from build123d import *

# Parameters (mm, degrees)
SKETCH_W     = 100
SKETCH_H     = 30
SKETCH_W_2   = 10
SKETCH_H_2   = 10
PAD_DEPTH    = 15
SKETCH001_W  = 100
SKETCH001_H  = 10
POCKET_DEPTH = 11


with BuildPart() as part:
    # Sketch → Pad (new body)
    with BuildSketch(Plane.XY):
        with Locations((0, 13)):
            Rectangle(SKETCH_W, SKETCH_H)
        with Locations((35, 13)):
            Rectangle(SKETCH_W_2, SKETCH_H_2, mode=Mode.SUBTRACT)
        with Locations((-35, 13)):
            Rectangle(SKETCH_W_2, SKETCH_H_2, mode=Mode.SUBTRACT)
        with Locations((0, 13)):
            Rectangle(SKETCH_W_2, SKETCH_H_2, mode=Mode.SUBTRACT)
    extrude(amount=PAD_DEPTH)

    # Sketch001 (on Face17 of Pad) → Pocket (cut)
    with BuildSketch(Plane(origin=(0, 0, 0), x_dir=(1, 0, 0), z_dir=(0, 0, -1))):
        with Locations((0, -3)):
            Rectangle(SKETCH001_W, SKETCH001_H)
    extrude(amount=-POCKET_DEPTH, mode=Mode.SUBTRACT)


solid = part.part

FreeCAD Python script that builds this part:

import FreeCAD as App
import Part
import Sketcher
from FreeCAD import Vector
Q = App.Units.Quantity

doc = App.newDocument("Part")
body = doc.addObject("PartDesign::Body", "Body")

sketch1 = body.newObject("Sketcher::SketchObject", "Sketch")
sketch1.AttachmentSupport = (doc.getObject("XY_Plane"), [""])
sketch1.MapMode = "FlatFace"
sketch1.addGeometry([
    Part.LineSegment(Vector(-50, 28, 0), Vector(-50, -2, 0)),
    Part.LineSegment(Vector(-50, -2, 0), Vector(50, -2, 0)),
    Part.LineSegment(Vector(50, -2, 0), Vector(50, 28, 0)),
    Part.LineSegment(Vector(50, 28, 0), Vector(-50, 28, 0)),
    Part.LineSegment(Vector(-30, 8, 0), Vector(-40, 8, 0)),
    Part.LineSegment(Vector(-40, 8, 0), Vector(-40, 18, 0)),
    Part.LineSegment(Vector(-40, 18, 0), Vector(-30, 18, 0)),
    Part.LineSegment(Vector(-30, 18, 0), Vector(-30, 8, 0)),
    Part.LineSegment(Vector(5, 8, 0), Vector(-5, 8, 0)),
    Part.LineSegment(Vector(-5, 8, 0), Vector(-5, 18, 0)),
    Part.LineSegment(Vector(-5, 18, 0), Vector(5, 18, 0)),
    Part.LineSegment(Vector(5, 18, 0), Vector(5, 8, 0)),
    Part.LineSegment(Vector(40, 8, 0), Vector(30, 8, 0)),
    Part.LineSegment(Vector(30, 8, 0), Vector(30, 18, 0)),
    Part.LineSegment(Vector(30, 18, 0), Vector(40, 18, 0)),
    Part.LineSegment(Vector(40, 18, 0), Vector(40, 8, 0)),
], False)
sketch1.addConstraint([
    Sketcher.Constraint("Coincident", 0, 2, 1, 1),
    Sketcher.Constraint("Coincident", 1, 2, 2, 1),
    Sketcher.Constraint("Coincident", 2, 2, 3, 1),
    Sketcher.Constraint("Coincident", 3, 2, 0, 1),
    Sketcher.Constraint("Coincident", 4, 2, 5, 1),
    Sketcher.Constraint("Coincident", 5, 2, 6, 1),
    Sketcher.Constraint("Coincident", 6, 2, 7, 1),
    Sketcher.Constraint("Coincident", 7, 2, 4, 1),
    Sketcher.Constraint("Coincident", 8, 2, 9, 1),
    Sketcher.Constraint("Coincident", 9, 2, 10, 1),
    Sketcher.Constraint("Coincident", 10, 2, 11, 1),
    Sketcher.Constraint("Coincident", 11, 2, 8, 1),
    Sketcher.Constraint("Coincident", 12, 2, 13, 1),
    Sketcher.Constraint("Coincident", 13, 2, 14, 1),
    Sketcher.Constraint("Coincident", 14, 2, 15, 1),
    Sketcher.Constraint("Coincident", 15, 2, 12, 1),
    Sketcher.Constraint("Vertical", 0),
    Sketcher.Constraint("Horizontal", 1),
    Sketcher.Constraint("Vertical", 2),
    Sketcher.Constraint("Horizontal", 3),
    Sketcher.Constraint("Horizontal", 4),
    Sketcher.Constraint("Vertical", 5),
    Sketcher.Constraint("Horizontal", 6),
    Sketcher.Constraint("Vertical", 7),
    Sketcher.Constraint("Horizontal", 8),
    Sketcher.Constraint("Vertical", 9),
    Sketcher.Constraint("Horizontal", 10),
    Sketcher.Constraint("Vertical", 11),
    Sketcher.Constraint("Horizontal", 12),
    Sketcher.Constraint("Vertical", 13),
    Sketcher.Constraint("Horizontal", 14),
    Sketcher.Constraint("Vertical", 15),
    Sketcher.Constraint("Symmetric", 7, 2, 12, 2, -2),
    Sketcher.Constraint("Symmetric", 5, 2, 14, 2, -2),
    Sketcher.Constraint("Horizontal", 7, 2, 8, 2),
    Sketcher.Constraint("Horizontal", 6, 2, 9, 2),
    Sketcher.Constraint("Equal", 6, 8),
    Sketcher.Constraint("Equal", 14, 5),
    Sketcher.Constraint("DistanceX", 1, 1, 1, 2, Q("100 mm")),
    Sketcher.Constraint("DistanceX", 4, 2, 4, 1, Q("10 mm")),
    Sketcher.Constraint("DistanceY", 0, 2, 0, 1, Q("30 mm")),
    Sketcher.Constraint("DistanceX", 0, 2, -1, 1, Q("50 mm")),
    Sketcher.Constraint("DistanceY", 0, 2, -1, 1, Q("2 mm")),
    Sketcher.Constraint("DistanceX", 4, 2, -1, 1, Q("40 mm")),
    Sketcher.Constraint("DistanceY", -1, 1, 4, 2, Q("8 mm")),
    Sketcher.Constraint("DistanceX", 8, 2, -1, 1, Q("5 mm")),
])
pad1 = body.newObject("PartDesign::Pad", "Pad")
pad1.Profile = sketch1
pad1.Length = 15

sketch2 = body.newObject("Sketcher::SketchObject", "Sketch001")
sketch2.AttachmentSupport = (doc.getObject("XY_Plane"), [""])
sketch2.MapMode = "FlatFace"
sketch2.addGeometry([
    Part.LineSegment(Vector(-50, -2, 0), Vector(-50, 8, 0)),
    Part.LineSegment(Vector(-50, 8, 0), Vector(50, 8, 0)),
    Part.LineSegment(Vector(50, 8, 0), Vector(50, -2, 0)),
    Part.LineSegment(Vector(50, -2, 0), Vector(-50, -2, 0)),
], False)
sketch2.addConstraint([
    Sketcher.Constraint("Coincident", 0, 2, 1, 1),
    Sketcher.Constraint("Coincident", 1, 2, 2, 1),
    Sketcher.Constraint("Coincident", 2, 2, 3, 1),
    Sketcher.Constraint("Coincident", 3, 2, 0, 1),
    Sketcher.Constraint("Vertical", 0),
    Sketcher.Constraint("Horizontal", 1),
    Sketcher.Constraint("Vertical", 2),
    Sketcher.Constraint("Horizontal", 3),
    Sketcher.Constraint("DistanceX", 1, 1, 1, 2, Q("100 mm")),
    Sketcher.Constraint("DistanceY", 0, 1, 0, 2, Q("10 mm")),
    Sketcher.Constraint("DistanceX", 0, 2, -1, 1, Q("50 mm")),
    Sketcher.Constraint("DistanceY", -1, 1, 0, 2, Q("8 mm")),
])
pocket1 = body.newObject("PartDesign::Pocket", "Pocket")
pocket1.Profile = sketch2
pocket1.Length = 11
pocket1.Reversed = True

doc.recompute()
